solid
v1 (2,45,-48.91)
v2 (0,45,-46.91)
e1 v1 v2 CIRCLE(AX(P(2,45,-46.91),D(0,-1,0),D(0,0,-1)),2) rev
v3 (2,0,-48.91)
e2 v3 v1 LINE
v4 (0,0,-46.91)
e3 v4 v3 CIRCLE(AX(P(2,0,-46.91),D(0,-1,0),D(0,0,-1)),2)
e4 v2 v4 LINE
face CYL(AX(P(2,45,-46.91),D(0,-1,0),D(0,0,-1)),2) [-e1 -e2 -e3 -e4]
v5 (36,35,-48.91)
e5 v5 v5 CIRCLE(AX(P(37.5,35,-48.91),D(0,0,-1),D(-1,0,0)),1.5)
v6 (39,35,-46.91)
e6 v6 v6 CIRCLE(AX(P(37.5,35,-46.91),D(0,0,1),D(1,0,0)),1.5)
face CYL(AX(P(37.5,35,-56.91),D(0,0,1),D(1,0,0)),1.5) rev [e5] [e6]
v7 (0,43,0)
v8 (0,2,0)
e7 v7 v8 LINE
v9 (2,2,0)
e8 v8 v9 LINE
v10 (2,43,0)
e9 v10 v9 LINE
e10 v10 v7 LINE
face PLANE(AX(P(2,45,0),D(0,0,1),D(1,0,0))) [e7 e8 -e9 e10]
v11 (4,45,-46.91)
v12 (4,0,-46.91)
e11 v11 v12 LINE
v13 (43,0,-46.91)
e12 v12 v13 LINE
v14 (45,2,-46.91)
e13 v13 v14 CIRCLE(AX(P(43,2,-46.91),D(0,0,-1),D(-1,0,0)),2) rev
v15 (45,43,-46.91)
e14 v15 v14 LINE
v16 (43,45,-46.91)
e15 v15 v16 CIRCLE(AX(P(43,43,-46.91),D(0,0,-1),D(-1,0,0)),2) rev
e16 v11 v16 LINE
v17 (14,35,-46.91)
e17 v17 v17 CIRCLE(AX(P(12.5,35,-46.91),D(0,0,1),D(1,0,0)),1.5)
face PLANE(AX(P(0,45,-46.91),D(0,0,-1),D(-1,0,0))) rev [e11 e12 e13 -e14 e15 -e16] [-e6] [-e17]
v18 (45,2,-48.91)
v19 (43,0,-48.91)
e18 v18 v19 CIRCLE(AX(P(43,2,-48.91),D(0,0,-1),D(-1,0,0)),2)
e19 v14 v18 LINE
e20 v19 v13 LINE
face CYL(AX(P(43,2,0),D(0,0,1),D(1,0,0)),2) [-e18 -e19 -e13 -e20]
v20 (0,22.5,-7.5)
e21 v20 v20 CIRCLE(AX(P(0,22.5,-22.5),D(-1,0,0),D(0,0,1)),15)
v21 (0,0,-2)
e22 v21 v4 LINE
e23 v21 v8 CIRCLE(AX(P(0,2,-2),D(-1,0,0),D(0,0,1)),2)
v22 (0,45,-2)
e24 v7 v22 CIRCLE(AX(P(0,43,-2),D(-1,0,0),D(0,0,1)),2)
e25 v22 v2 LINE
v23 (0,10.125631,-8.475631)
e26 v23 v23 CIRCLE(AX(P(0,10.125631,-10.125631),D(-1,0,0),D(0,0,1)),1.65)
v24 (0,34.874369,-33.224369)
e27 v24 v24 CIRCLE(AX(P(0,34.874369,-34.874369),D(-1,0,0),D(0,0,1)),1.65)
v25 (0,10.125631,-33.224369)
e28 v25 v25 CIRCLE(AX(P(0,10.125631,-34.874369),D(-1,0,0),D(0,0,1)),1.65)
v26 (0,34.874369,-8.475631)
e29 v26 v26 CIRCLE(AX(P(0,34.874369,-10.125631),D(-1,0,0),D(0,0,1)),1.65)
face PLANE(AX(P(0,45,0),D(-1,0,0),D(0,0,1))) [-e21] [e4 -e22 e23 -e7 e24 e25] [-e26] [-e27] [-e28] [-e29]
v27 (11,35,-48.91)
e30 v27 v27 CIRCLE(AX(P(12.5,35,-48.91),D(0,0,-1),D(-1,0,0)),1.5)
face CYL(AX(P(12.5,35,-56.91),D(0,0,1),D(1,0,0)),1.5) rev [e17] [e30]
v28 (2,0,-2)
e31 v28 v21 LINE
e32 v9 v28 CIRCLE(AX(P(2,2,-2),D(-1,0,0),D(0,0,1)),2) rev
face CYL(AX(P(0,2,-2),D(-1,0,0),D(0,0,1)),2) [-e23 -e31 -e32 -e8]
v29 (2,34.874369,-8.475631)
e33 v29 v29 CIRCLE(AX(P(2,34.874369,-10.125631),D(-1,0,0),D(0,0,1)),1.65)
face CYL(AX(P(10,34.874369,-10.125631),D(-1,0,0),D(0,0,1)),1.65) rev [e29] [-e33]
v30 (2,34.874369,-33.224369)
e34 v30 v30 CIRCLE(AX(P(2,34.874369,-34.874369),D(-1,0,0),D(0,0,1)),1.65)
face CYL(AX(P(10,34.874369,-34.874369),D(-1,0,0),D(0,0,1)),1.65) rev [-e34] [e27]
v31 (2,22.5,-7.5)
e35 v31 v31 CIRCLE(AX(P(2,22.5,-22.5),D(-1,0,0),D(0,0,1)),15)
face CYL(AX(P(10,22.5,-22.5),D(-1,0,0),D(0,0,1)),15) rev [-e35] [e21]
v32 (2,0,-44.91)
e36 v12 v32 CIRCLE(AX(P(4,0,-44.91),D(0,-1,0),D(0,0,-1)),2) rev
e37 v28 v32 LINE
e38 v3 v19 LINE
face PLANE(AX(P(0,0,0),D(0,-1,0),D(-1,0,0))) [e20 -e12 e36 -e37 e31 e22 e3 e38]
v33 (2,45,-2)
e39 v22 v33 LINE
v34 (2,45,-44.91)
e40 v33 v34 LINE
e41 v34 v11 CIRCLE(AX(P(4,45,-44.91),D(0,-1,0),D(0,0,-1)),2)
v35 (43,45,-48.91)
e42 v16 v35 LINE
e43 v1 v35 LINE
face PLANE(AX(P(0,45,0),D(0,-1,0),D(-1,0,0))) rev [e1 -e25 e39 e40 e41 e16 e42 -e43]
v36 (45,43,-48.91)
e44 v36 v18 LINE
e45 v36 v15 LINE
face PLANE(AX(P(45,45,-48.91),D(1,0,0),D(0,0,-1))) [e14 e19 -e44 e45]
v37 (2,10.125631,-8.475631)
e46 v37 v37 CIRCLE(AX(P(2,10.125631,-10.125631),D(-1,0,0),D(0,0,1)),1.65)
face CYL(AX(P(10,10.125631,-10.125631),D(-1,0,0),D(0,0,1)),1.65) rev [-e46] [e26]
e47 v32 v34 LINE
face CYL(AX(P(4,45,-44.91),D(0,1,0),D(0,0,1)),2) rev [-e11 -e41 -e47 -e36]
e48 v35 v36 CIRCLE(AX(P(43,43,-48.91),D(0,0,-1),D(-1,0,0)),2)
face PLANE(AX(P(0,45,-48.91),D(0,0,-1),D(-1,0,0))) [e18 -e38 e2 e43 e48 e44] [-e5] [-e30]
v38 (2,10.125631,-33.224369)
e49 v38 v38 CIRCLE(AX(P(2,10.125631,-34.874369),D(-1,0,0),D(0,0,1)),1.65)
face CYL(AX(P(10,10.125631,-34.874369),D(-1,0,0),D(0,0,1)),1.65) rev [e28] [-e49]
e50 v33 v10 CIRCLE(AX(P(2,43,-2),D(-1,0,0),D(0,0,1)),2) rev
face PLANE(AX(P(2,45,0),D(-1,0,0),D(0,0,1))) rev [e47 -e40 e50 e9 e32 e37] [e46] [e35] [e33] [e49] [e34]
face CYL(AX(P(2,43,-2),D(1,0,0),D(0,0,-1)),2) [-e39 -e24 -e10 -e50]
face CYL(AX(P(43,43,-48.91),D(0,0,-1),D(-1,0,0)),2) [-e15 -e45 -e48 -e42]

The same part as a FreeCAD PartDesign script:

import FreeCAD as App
import Part
import Sketcher

V = App.Vector
Q = App.Units.Quantity


def edges_at(feature, points):
    """Names of the edges that pass closest to the given points."""
    edges = feature.Shape.Edges
    near = lambda p: min(range(len(edges)), key=lambda i: edges[i].distToShape(Part.Vertex(*p))[0])
    return sorted({f"Edge{near(p) + 1}" for p in points})

doc = App.newDocument("Part")
body = doc.addObject("PartDesign::Body", "Body")

# Sketch on XZ plane
sketch1 = doc.addObject("Sketcher::SketchObject", "Sketch")
body.addObject(sketch1)
sketch1.AttachmentSupport = (doc.XZ_Plane, [""])
sketch1.MapMode = "FlatFace"
sketch1.addGeometry(Part.LineSegment(V(0, -48.91, 0), V(0, 0, 0)), False)
sketch1.addGeometry(Part.LineSegment(V(0, 0, 0), V(2, 0, 0)), False)
sketch1.addGeometry(Part.LineSegment(V(2, 0, 0), V(2, -46.91, 0)), False)
sketch1.addGeometry(Part.LineSegment(V(2, -46.91, 0), V(45, -46.91, 0)), False)
sketch1.addGeometry(Part.LineSegment(V(45, -46.91, 0), V(45, -48.91, 0)), False)
sketch1.addGeometry(Part.LineSegment(V(45, -48.91, 0), V(0, -48.91, 0)), False)
sketch1.addConstraint(Sketcher.Constraint("Coincident", 0, 2, 1, 1))
sketch1.addConstraint(Sketcher.Constraint("Coincident", 1, 2, 2, 1))
sketch1.addConstraint(Sketcher.Constraint("Coincident", 2, 2, 3, 1))
sketch1.addConstraint(Sketcher.Constraint("Coincident", 3, 2, 4, 1))
sketch1.addConstraint(Sketcher.Constraint("Coincident", 4, 2, 5, 1))
sketch1.addConstraint(Sketcher.Constraint("Coincident", 5, 2, 0, 1))
sketch1.addConstraint(Sketcher.Constraint("Vertical", 0))
sketch1.addConstraint(Sketcher.Constraint("Horizontal", 1))
sketch1.addConstraint(Sketcher.Constraint("Vertical", 2))
sketch1.addConstraint(Sketcher.Constraint("Horizontal", 3))
sketch1.addConstraint(Sketcher.Constraint("Vertical", 4))
sketch1.addConstraint(Sketcher.Constraint("Horizontal", 5))
sketch1.addConstraint(Sketcher.Constraint("Coincident", 0, 2, -1, 1))
sketch1.addConstraint(Sketcher.Constraint("Equal", 1, 4))
sketch1.addConstraint(Sketcher.Constraint("DistanceX", 1, 1, 1, 2, Q("2 mm")))
sketch1.addConstraint(Sketcher.Constraint("DistanceX", 3, 1, 3, 2, Q("43 mm")))
sketch1.addConstraint(Sketcher.Constraint("DistanceY", 0, 1, 0, 2, Q("48.91 mm")))
pad1 = doc.addObject("PartDesign::Pad", "Pad")
body.addObject(pad1)
pad1.Profile = sketch1
pad1.Length = 45
pad1.Reversed = True
doc.recompute()

fillet = doc.addObject("PartDesign::Fillet", "Fillet")
body.addObject(fillet)
fillet.Base = (pad1, edges_at(pad1, [(2, 22.5, -46.91), (0, 22.5, -48.91)]))
fillet.Radius = 2

# Sketch on YZ plane
sketch2 = doc.addObject("Sketcher::SketchObject", "Sketch001")
body.addObject(sketch2)
sketch2.AttachmentSupport = (doc.YZ_Plane, [""])
sketch2.MapMode = "FlatFace"
sketch2.addGeometry(Part.Circle(V(22.5, -22.5, 0), V(0, 0, 1), 15), False)
sketch2.addConstraint(Sketcher.Constraint("Diameter", 0, Q("30 mm")))
sketch2.addConstraint(Sketcher.Constraint("DistanceX", -1, 1, 0, 3, Q("22.5 mm")))
sketch2.addConstraint(Sketcher.Constraint("DistanceY", 0, 3, -1, 1, Q("22.5 mm")))
pocket1 = doc.addObject("PartDesign::Pocket", "Pocket")
body.addObject(pocket1)
pocket1.Profile = sketch2
pocket1.Length = 10
pocket1.Reversed = True
doc.recompute()

fillet2 = doc.addObject("PartDesign::Fillet", "Fillet001")
body.addObject(fillet2)
fillet2.Base = (pocket1, edges_at(pocket1, [
    (1, 45, 0),
    (1, 0, 0),
    (45, 0, -47.91),
    (45, 45, -47.91),
]))
fillet2.Radius = 2

# Sketch on YZ plane
sketch3 = doc.addObject("Sketcher::SketchObject", "Sketch002")
body.addObject(sketch3)
sketch3.AttachmentSupport = (doc.YZ_Plane, [""])
sketch3.MapMode = "FlatFace"
sketch3.addGeometry(Part.Circle(V(10.125631, -34.874369, 0), V(0, 0, 1), 1.65), False)
sketch3.addGeometry(Part.Circle(V(10.125631, -10.125631, 0), V(0, 0, 1), 1.65), False)
sketch3.addGeometry(Part.Circle(V(34.874369, -10.125631, 0), V(0, 0, 1), 1.65), False)
sketch3.addGeometry(Part.Circle(V(34.874369, -34.874369, 0), V(0, 0, 1), 1.65), False)
sketch3.addConstraint(Sketcher.Constraint("Equal", 0, 1))
sketch3.addConstraint(Sketcher.Constraint("Equal", 1, 2))
sketch3.addConstraint(Sketcher.Constraint("Equal", 2, 3))
sketch3.addConstraint(Sketcher.Constraint("Horizontal", 1, 3, 2, 3))
sketch3.addConstraint(Sketcher.Constraint("Horizontal", 0, 3, 3, 3))
sketch3.addConstraint(Sketcher.Constraint("Vertical", 0, 3, 1, 3))
sketch3.addConstraint(Sketcher.Constraint("Vertical", 2, 3, 3, 3))
sketch3.addConstraint(Sketcher.Constraint("Diameter", 0, Q("3.3 mm")))
sketch3.addConstraint(Sketcher.Constraint("DistanceX", -1, 1, 0, 3, Q("10.125631 mm")))
sketch3.addConstraint(Sketcher.Constraint("DistanceY", 0, 3, -1, 1, Q("34.874369 mm")))
sketch3.addConstraint(Sketcher.Constraint("DistanceY", 1, 3, -1, 1, Q("10.125631 mm")))
sketch3.addConstraint(Sketcher.Constraint("DistanceX", -1, 1, 2, 3, Q("34.874369 mm")))
pocket2 = doc.addObject("PartDesign::Pocket", "Pocket001")
body.addObject(pocket2)
pocket2.Profile = sketch3
pocket2.Length = 10
pocket2.Reversed = True

# Sketch on XY plane
sketch4 = doc.addObject("Sketcher::SketchObject", "Sketch003")
body.addObject(sketch4)
sketch4.AttachmentSupport = (doc.XY_Plane, [""])
sketch4.MapMode = "FlatFace"
sketch4.AttachmentOffset = App.Placement(V(0, 0, -46.91), App.Rotation())
sketch4.addGeometry(Part.Circle(V(12.5, 35, 0), V(0, 0, 1), 1.5), False)
sketch4.addGeometry(Part.Circle(V(37.5, 35, 0), V(0, 0, 1), 1.5), False)
sketch4.addConstraint(Sketcher.Constraint("Equal", 0, 1))
sketch4.addConstraint(Sketcher.Constraint("Horizontal", 0, 3, 1, 3))
sketch4.addConstraint(Sketcher.Constraint("Diameter", 0, Q("3 mm")))
sketch4.addConstraint(Sketcher.Constraint("DistanceY", -1, 1, 0, 3, Q("35 mm")))
sketch4.addConstraint(Sketcher.Constraint("DistanceX", 0, 3, 1, 3, Q("25 mm")))
sketch4.addConstraint(Sketcher.Constraint("DistanceX", -1, 1, 0, 3, Q("12.5 mm")))
pocket3 = doc.addObject("PartDesign::Pocket", "Pocket002")
body.addObject(pocket3)
pocket3.Profile = sketch4
pocket3.Length = 10

doc.recompute()
